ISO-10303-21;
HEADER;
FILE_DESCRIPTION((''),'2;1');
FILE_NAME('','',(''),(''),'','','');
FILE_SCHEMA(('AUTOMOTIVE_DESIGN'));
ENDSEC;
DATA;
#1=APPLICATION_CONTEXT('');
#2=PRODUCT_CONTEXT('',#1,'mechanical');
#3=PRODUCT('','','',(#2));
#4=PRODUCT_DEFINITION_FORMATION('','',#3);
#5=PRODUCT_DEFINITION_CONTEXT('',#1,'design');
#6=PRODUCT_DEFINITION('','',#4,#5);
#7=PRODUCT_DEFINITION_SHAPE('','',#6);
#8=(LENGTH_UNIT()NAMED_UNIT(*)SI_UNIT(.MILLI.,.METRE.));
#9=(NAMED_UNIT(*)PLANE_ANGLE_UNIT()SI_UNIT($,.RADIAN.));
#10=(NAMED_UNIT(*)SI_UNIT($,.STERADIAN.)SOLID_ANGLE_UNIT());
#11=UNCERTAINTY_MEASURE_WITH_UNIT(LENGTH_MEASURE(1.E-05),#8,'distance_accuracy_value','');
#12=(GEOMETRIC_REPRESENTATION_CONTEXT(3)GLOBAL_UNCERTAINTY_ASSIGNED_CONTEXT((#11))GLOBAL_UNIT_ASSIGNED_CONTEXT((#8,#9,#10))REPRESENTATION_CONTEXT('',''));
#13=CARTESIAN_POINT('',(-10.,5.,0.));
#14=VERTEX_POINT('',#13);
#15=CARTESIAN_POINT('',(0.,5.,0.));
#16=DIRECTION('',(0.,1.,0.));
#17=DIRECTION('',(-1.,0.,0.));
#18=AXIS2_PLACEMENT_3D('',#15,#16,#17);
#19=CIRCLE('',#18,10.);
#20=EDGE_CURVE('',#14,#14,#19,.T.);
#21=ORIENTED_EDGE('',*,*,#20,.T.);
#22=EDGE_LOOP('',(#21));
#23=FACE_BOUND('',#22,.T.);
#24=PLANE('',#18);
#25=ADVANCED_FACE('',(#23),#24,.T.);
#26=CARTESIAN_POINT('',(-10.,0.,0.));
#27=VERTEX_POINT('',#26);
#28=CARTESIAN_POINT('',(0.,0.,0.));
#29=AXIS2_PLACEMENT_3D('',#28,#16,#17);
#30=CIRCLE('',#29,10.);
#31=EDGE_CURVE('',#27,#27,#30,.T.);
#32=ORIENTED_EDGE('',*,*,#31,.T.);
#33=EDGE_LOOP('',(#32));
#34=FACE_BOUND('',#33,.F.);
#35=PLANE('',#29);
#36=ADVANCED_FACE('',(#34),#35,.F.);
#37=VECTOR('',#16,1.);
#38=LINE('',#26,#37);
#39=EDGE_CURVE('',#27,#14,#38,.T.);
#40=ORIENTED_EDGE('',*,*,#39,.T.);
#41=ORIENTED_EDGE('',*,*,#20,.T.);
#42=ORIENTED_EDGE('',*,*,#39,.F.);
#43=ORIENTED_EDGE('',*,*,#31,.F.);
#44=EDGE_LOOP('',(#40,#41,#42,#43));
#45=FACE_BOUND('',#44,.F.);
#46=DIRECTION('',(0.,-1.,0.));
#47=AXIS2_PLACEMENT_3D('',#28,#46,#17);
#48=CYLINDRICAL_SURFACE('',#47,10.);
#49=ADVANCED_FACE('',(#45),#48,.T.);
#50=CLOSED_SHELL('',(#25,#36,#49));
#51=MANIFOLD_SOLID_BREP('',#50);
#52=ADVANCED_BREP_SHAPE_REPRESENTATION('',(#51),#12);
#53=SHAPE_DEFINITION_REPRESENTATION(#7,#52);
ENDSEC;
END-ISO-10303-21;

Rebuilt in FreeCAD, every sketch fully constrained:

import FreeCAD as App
import Part
import Sketcher
Q = App.Units.Quantity

doc = App.newDocument("Part")
body = doc.addObject("PartDesign::Body", "Body")

sketch1 = body.newObject("Sketcher::SketchObject", "Sketch")
sketch1.AttachmentSupport = (doc.getObject("XZ_Plane"), [""])
sketch1.MapMode = "FlatFace"
sketch1.addGeometry(Part.Circle(App.Vector(0, 0, 0), App.Vector(0, 0, 1), 10), False)
sketch1.addConstraint([
    Sketcher.Constraint("Coincident", 0, 3, -1, 1),
    Sketcher.Constraint("Diameter", 0, Q("20 mm")),
])
pad1 = body.newObject("PartDesign::Pad", "Pad")
pad1.Profile = sketch1
pad1.Length = 5
pad1.Reversed = True

doc.recompute()
